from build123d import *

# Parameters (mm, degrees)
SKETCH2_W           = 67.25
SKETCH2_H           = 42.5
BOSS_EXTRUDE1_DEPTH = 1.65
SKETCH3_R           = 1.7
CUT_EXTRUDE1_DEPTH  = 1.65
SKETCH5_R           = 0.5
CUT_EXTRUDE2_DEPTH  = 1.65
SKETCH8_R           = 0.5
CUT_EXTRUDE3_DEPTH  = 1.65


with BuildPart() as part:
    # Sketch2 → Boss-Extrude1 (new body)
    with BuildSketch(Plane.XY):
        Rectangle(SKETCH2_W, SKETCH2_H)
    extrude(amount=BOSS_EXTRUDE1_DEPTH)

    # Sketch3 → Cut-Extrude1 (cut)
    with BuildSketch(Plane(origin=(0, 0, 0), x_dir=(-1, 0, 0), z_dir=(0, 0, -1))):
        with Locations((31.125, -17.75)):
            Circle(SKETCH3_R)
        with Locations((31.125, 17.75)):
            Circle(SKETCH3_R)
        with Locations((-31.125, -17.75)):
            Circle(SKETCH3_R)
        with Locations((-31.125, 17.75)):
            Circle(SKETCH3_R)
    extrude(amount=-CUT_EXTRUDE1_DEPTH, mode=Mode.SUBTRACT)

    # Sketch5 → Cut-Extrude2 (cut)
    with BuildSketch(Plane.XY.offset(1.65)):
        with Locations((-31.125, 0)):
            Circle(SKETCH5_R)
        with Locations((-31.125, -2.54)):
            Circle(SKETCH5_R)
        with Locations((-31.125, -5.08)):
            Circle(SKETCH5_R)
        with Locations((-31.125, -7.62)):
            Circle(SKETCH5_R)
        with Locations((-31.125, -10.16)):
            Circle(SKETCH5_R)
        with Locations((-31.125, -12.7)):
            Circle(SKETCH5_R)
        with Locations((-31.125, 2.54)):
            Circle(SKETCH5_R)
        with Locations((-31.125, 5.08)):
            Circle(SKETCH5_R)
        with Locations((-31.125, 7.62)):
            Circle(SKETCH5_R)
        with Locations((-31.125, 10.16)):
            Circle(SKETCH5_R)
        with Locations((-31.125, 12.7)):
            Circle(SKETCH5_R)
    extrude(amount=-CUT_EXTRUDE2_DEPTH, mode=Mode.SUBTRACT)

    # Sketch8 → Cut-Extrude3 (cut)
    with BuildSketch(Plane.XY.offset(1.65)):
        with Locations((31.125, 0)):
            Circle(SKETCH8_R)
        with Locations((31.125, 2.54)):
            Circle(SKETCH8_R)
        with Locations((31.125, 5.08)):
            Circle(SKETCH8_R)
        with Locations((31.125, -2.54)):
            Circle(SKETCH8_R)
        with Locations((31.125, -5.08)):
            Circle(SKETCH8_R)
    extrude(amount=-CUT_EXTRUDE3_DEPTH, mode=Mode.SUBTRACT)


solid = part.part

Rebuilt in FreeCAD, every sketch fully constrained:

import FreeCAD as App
import Part
import Sketcher

V = App.Vector

doc = App.newDocument("Part")
params = doc.addObject("Spreadsheet::Sheet", "Params")
for row, (alias, value) in enumerate([
    ("sketch1_height", "42.5 mm"),
    ("sketch1_width", "67.25 mm"),
    ("pad1_length", "1.65 mm"),
    ("sketch2_diameter", "3.4 mm"),
    ("pocket1_length", "1.65 mm"),
    ("sketch3_diameter", "1 mm"),
    ("pocket2_length", "1.65 mm"),
    ("sketch4_diameter", "1 mm"),
    ("pocket3_length", "1.65 mm"),
], start=1):
    params.set(f"A{row}", alias)
    params.set(f"B{row}", "=" + value)
    params.setAlias(f"B{row}", alias)

body = doc.addObject("PartDesign::Body", "Body")

sketch1 = body.newObject("Sketcher::SketchObject", "Sketch")
sketch1.AttachmentSupport = (doc.getObject("XY_Plane"), [""])
sketch1.MapMode = "FlatFace"
sketch1.addGeometry(Part.LineSegment(V(-34, 21, 0), V(-34, -21, 0)), False)
sketch1.addGeometry(Part.LineSegment(V(-34, -21, 0), V(34, -21, 0)), False)
sketch1.addGeometry(Part.LineSegment(V(34, -21, 0), V(34, 21, 0)), False)
sketch1.addGeometry(Part.LineSegment(V(34, 21, 0), V(-34, 21, 0)), False)
sketch1.addConstraint(Sketcher.Constraint("Coincident", 0, 2, 1, 1))
sketch1.addConstraint(Sketcher.Constraint("Coincident", 1, 2, 2, 1))
sketch1.addConstraint(Sketcher.Constraint("Coincident", 2, 2, 3, 1))
sketch1.addConstraint(Sketcher.Constraint("Coincident", 3, 2, 0, 1))
sketch1.addConstraint(Sketcher.Constraint("Vertical", 0))
sketch1.addConstraint(Sketcher.Constraint("Horizontal", 1))
sketch1.addConstraint(Sketcher.Constraint("Vertical", 2))
sketch1.addConstraint(Sketcher.Constraint("Horizontal", 3))
sketch1.addConstraint(Sketcher.Constraint("Symmetric", 0, 2, 2, 2, -1, 1))
sketch1.addConstraint(Sketcher.Constraint("DistanceY", 0, 2, 0, 1, 42.5))
sketch1.addConstraint(Sketcher.Constraint("DistanceX", 1, 1, 1, 2, 67.25))
sketch1.setExpression("Constraints[9]", "Params.sketch1_height")
sketch1.setExpression("Constraints[10]", "Params.sketch1_width")
pad1 = body.newObject("PartDesign::Pad", "Pad")
pad1.Profile = sketch1
pad1.setExpression("Length", "Params.pad1_length")

sketch2 = body.newObject("Sketcher::SketchObject", "Sketch001")
sketch2.AttachmentSupport = (doc.getObject("XY_Plane"), [""])
sketch2.MapMode = "FlatFace"
sketch2.addGeometry(Part.Circle(V(-31.1, -17.8, 0), V(0, 0, 1), 1.7), False)
sketch2.addGeometry(Part.Circle(V(-31.1, 17.8, 0), V(0, 0, 1), 1.7), False)
sketch2.addGeometry(Part.Circle(V(31.1, -17.8, 0), V(0, 0, 1), 1.7), False)
sketch2.addGeometry(Part.Circle(V(31.1, 17.8, 0), V(0, 0, 1), 1.7), False)
sketch2.addConstraint(Sketcher.Constraint("Equal", 0, 1))
sketch2.addConstraint(Sketcher.Constraint("Equal", 1, 2))
sketch2.addConstraint(Sketcher.Constraint("Equal", 2, 3))
sketch2.addConstraint(Sketcher.Constraint("Symmetric", 1, 3, 2, 3, -1, 1))
sketch2.addConstraint(Sketcher.Constraint("Symmetric", 0, 3, 3, 3, -1, 1))
sketch2.addConstraint(Sketcher.Constraint("Symmetric", 0, 3, 2, 3, -2))
sketch2.addConstraint(Sketcher.Constraint("Diameter", 0, 3.4))
sketch2.addConstraint(Sketcher.Constraint("DistanceY", 0, 3, 1, 3, 35.5))
sketch2.addConstraint(Sketcher.Constraint("DistanceX", 0, 3, 2, 3, 62.25))
sketch2.setExpression("Constraints[6]", "Params.sketch2_diameter")
pocket1 = body.newObject("PartDesign::Pocket", "Pocket")
pocket1.Profile = sketch2
pocket1.setExpression("Length", "Params.pocket1_length")
pocket1.Reversed = True

sketch3 = body.newObject("Sketcher::SketchObject", "Sketch002")
sketch3.AttachmentSupport = (doc.getObject("XY_Plane"), [""])
sketch3.MapMode = "FlatFace"
sketch3.AttachmentOffset = App.Placement(V(0, 0, 1.65), App.Rotation())
sketch3.addGeometry(Part.Circle(V(-31.1, 0, 0), V(0, 0, 1), 0.5), False)
sketch3.addGeometry(Part.Circle(V(-31.1, -2.5, 0), V(0, 0, 1), 0.5), False)
sketch3.addGeometry(Part.Circle(V(-31.1, -5.1, 0), V(0, 0, 1), 0.5), False)
sketch3.addGeometry(Part.Circle(V(-31.1, -7.6, 0), V(0, 0, 1), 0.5), False)
sketch3.addGeometry(Part.Circle(V(-31.1, -10.2, 0), V(0, 0, 1), 0.5), False)
sketch3.addGeometry(Part.Circle(V(-31.1, -12.7, 0), V(0, 0, 1), 0.5), False)
sketch3.addGeometry(Part.Circle(V(-31.1, 2.5, 0), V(0, 0, 1), 0.5), False)
sketch3.addGeometry(Part.Circle(V(-31.1, 5.1, 0), V(0, 0, 1), 0.5), False)
sketch3.addGeometry(Part.Circle(V(-31.1, 7.6, 0), V(0, 0, 1), 0.5), False)
sketch3.addGeometry(Part.Circle(V(-31.1, 10.2, 0), V(0, 0, 1), 0.5), False)
sketch3.addGeometry(Part.Circle(V(-31.1, 12.7, 0), V(0, 0, 1), 0.5), False)
sketch3.addConstraint(Sketcher.Constraint("Equal", 0, 1))
sketch3.addConstraint(Sketcher.Constraint("Equal", 1, 2))
sketch3.addConstraint(Sketcher.Constraint("Equal", 2, 3))
sketch3.addConstraint(Sketcher.Constraint("Equal", 3, 4))
sketch3.addConstraint(Sketcher.Constraint("Equal", 4, 5))
sketch3.addConstraint(Sketcher.Constraint("Equal", 5, 6))
sketch3.addConstraint(Sketcher.Constraint("Equal", 6, 7))
sketch3.addConstraint(Sketcher.Constraint("Equal", 7, 8))
sketch3.addConstraint(Sketcher.Constraint("Equal", 8, 9))
sketch3.addConstraint(Sketcher.Constraint("Equal", 9, 10))
sketch3.addConstraint(Sketcher.Constraint("Symmetric", 1, 3, 6, 3, -1))
sketch3.addConstraint(Sketcher.Constraint("Symmetric", 2, 3, 7, 3, -1))
sketch3.addConstraint(Sketcher.Constraint("Symmetric", 3, 3, 8, 3, -1))
sketch3.addConstraint(Sketcher.Constraint("Symmetric", 4, 3, 9, 3, -1))
sketch3.addConstraint(Sketcher.Constraint("Symmetric", 5, 3, 10, 3, -1))
sketch3.addConstraint(Sketcher.Constraint("PointOnObject", 0, 3, -1))
sketch3.addConstraint(Sketcher.Constraint("Vertical", 0, 3, 1, 3))
sketch3.addConstraint(Sketcher.Constraint("Vertical", 1, 3, 2, 3))
sketch3.addConstraint(Sketcher.Constraint("Vertical", 2, 3, 3, 3))
sketch3.addConstraint(Sketcher.Constraint("Vertical", 3, 3, 4, 3))
sketch3.addConstraint(Sketcher.Constraint("Vertical", 4, 3, 5, 3))
sketch3.addConstraint(Sketcher.Constraint("Diameter", 0, 1.0))
sketch3.addConstraint(Sketcher.Constraint("DistanceY", 5, 3, -1, 1, 12.7))
sketch3.addConstraint(Sketcher.Constraint("DistanceY", 4, 3, 6, 3, 12.7))
sketch3.addConstraint(Sketcher.Constraint("DistanceY", 3, 3, 7, 3, 12.7))
sketch3.addConstraint(Sketcher.Constraint("DistanceY", 1, 3, -1, 1, 2.54))
sketch3.addConstraint(Sketcher.Constraint("DistanceY", 2, 3, -1, 1, 5.08))
sketch3.addConstraint(Sketcher.Constraint("DistanceX", 0, 3, -1, 1, 31.125))
sketch3.setExpression("Constraints[21]", "Params.sketch3_diameter")
pocket2 = body.newObject("PartDesign::Pocket", "Pocket001")
pocket2.Profile = sketch3
pocket2.setExpression("Length", "Params.pocket2_length")

sketch4 = body.newObject("Sketcher::SketchObject", "Sketch003")
sketch4.AttachmentSupport = (doc.getObject("XY_Plane"), [""])
sketch4.MapMode = "FlatFace"
sketch4.AttachmentOffset = App.Placement(V(0, 0, 1.65), App.Rotation())
sketch4.addGeometry(Part.Circle(V(31.1, 0, 0), V(0, 0, 1), 0.5), False)
sketch4.addGeometry(Part.Circle(V(31.1, 2.5, 0), V(0, 0, 1), 0.5), False)
sketch4.addGeometry(Part.Circle(V(31.1, 5.1, 0), V(0, 0, 1), 0.5), False)
sketch4.addGeometry(Part.Circle(V(31.1, -2.5, 0), V(0, 0, 1), 0.5), False)
sketch4.addGeometry(Part.Circle(V(31.1, -5.1, 0), V(0, 0, 1), 0.5), False)
sketch4.addConstraint(Sketcher.Constraint("Equal", 0, 1))
sketch4.addConstraint(Sketcher.Constraint("Equal", 1, 2))
sketch4.addConstraint(Sketcher.Constraint("Equal", 2, 3))
sketch4.addConstraint(Sketcher.Constraint("Equal", 3, 4))
sketch4.addConstraint(Sketcher.Constraint("Symmetric", 1, 3, 3, 3, -1))
sketch4.addConstraint(Sketcher.Constraint("Symmetric", 2, 3, 4, 3, -1))
sketch4.addConstraint(Sketcher.Constraint("PointOnObject", 0, 3, -1))
sketch4.addConstraint(Sketcher.Constraint("Vertical", 0, 3, 1, 3))
sketch4.addConstraint(Sketcher.Constraint("Vertical", 1, 3, 2, 3))
sketch4.addConstraint(Sketcher.Constraint("Diameter", 0, 1.0))
sketch4.addConstraint(Sketcher.Constraint("DistanceY", -1, 1, 1, 3, 2.54))
sketch4.addConstraint(Sketcher.Constraint("DistanceY", -1, 1, 2, 3, 5.08))
sketch4.addConstraint(Sketcher.Constraint("DistanceX", -1, 1, 0, 3, 31.125))
sketch4.setExpression("Constraints[9]", "Params.sketch4_diameter")
pocket3 = body.newObject("PartDesign::Pocket", "Pocket002")
pocket3.Profile = sketch4
pocket3.setExpression("Length", "Params.pocket3_length")

doc.recompute()
